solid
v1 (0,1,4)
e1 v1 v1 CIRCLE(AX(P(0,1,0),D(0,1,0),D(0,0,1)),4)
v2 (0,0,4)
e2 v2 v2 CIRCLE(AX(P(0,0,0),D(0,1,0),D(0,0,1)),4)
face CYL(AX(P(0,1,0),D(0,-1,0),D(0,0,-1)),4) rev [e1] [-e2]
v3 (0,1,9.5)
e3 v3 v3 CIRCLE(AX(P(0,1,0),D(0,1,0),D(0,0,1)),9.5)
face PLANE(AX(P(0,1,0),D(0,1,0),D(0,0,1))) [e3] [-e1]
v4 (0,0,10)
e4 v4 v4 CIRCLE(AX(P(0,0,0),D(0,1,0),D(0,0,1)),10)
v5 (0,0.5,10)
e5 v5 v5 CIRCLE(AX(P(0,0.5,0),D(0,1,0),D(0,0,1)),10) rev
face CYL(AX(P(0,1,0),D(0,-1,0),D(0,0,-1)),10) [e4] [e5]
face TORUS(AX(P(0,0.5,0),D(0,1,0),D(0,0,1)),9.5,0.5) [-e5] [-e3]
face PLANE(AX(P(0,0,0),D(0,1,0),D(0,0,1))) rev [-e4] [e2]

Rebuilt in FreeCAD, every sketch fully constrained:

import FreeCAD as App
import Part
import Sketcher

V = App.Vector


def edges_at(feature, points):
    """Names of the edges that pass closest to the given points."""
    edges = feature.Shape.Edges
    near = lambda p: min(range(len(edges)), key=lambda i: edges[i].distToShape(Part.Vertex(*p))[0])
    return sorted({f"Edge{near(p) + 1}" for p in points})

doc = App.newDocument("Part")
body = doc.addObject("PartDesign::Body", "Body")

# Sketch on XZ plane
sketch1 = body.newObject("Sketcher::SketchObject", "Sketch")
sketch1.AttachmentSupport = (doc.getObject("XZ_Plane"), [""])
sketch1.MapMode = "FlatFace"
sketch1.addGeometry([
    Part.Circle(V(0, 0, 0), V(0, 0, 1), 10),
    Part.Circle(V(0, 0, 0), V(0, 0, 1), 4),
], False)
sketch1.addConstraint([
    Sketcher.Constraint("Coincident", 0, 3, -1, 1),
    Sketcher.Constraint("Coincident", 1, 3, -1, 1),
    Sketcher.Constraint("Diameter", 0, 20.0),
    Sketcher.Constraint("Diameter", 1, 8.0),
])
pad1 = body.newObject("PartDesign::Pad", "Pad")
pad1.Profile = sketch1
pad1.Length = 1
pad1.Reversed = True
doc.recompute()

fillet = body.newObject("PartDesign::Fillet", "Fillet")
fillet.Base = (pad1, edges_at(pad1, [(0, 1, -10)]))
fillet.Radius = 0.5

doc.recompute()
